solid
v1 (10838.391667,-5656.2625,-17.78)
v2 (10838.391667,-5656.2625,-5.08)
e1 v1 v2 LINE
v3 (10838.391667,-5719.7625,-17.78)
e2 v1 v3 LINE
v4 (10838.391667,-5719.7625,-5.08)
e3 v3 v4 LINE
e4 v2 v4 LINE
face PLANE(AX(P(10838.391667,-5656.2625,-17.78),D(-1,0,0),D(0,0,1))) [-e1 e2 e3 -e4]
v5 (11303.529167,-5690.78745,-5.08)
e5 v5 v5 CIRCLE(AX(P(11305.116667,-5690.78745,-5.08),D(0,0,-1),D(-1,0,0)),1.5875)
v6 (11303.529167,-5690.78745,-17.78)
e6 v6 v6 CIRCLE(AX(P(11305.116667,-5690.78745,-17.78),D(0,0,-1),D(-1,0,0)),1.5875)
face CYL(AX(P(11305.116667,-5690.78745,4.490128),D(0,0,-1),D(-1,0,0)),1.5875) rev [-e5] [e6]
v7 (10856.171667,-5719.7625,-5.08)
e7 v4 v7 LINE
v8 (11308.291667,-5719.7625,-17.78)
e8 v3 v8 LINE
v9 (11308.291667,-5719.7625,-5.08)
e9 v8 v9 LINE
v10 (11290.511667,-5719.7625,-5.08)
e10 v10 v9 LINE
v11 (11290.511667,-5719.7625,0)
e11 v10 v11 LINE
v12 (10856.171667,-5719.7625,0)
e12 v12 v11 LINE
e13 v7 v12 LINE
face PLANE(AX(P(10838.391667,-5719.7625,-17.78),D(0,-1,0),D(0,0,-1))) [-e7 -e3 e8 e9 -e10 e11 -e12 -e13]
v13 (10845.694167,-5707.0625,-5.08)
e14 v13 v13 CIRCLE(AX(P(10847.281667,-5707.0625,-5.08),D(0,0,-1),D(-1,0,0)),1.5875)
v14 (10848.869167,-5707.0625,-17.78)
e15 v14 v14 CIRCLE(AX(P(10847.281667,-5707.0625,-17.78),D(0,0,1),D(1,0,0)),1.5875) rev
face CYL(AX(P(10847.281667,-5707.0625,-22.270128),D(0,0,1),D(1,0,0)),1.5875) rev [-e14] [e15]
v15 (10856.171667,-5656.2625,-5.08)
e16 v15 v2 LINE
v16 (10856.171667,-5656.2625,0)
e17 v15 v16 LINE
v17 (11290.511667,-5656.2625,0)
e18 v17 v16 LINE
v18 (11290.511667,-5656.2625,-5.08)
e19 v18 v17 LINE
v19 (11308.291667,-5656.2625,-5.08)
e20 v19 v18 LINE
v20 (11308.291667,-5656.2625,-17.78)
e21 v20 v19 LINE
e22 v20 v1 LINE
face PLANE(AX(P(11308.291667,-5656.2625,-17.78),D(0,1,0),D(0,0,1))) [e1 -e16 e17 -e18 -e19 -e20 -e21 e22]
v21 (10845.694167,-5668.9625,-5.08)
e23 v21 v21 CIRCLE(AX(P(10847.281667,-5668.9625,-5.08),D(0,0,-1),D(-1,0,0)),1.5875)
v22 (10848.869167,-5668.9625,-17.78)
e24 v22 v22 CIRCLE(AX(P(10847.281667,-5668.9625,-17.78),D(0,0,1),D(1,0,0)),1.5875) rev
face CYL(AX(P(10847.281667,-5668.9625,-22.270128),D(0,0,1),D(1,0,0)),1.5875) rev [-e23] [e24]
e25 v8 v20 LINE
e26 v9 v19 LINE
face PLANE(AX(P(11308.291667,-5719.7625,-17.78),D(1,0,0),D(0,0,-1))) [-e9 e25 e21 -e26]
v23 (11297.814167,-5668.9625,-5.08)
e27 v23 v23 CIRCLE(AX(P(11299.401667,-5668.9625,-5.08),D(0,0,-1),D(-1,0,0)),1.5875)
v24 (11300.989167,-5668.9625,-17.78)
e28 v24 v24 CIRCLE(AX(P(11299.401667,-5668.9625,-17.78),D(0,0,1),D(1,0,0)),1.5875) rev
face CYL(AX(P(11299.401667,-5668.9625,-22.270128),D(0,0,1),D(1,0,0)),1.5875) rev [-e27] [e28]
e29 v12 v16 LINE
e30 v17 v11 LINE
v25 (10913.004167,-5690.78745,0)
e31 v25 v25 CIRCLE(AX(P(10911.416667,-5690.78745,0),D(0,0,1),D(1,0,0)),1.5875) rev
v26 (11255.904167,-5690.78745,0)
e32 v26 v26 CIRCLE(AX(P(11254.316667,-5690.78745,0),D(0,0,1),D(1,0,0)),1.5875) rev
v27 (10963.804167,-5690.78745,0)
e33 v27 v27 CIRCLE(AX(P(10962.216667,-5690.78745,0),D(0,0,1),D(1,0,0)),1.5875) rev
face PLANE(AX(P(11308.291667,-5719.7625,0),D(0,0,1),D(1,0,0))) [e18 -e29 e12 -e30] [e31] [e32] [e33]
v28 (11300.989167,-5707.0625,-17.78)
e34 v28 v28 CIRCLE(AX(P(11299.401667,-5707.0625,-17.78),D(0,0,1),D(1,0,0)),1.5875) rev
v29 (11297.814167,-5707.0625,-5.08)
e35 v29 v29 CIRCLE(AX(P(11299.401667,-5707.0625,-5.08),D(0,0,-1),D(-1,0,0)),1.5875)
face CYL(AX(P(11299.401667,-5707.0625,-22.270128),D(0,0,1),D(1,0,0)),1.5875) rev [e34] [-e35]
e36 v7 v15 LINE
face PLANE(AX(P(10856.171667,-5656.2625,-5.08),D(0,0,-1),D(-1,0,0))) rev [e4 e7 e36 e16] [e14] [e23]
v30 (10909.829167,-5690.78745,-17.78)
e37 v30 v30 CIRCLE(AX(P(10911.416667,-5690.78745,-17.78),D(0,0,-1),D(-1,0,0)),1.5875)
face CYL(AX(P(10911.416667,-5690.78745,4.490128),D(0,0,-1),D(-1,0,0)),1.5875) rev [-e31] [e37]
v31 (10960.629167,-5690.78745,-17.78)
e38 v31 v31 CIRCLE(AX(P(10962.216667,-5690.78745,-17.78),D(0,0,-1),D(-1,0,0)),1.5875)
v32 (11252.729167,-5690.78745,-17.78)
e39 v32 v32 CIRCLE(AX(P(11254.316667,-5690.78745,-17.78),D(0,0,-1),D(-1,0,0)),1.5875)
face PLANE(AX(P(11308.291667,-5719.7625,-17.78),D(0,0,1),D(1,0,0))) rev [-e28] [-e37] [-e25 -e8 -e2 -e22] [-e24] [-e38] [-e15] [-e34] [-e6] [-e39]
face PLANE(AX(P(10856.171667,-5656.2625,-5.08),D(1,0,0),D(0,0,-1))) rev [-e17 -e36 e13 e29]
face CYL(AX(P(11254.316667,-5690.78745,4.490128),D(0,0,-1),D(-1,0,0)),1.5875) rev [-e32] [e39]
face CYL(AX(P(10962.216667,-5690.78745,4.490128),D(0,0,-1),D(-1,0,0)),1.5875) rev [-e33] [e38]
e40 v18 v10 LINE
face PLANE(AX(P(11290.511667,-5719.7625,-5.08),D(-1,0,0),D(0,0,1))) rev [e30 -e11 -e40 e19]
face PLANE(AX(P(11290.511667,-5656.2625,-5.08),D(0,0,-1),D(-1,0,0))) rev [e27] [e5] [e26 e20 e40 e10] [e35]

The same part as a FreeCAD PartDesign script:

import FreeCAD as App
import Part
import Sketcher
Q = App.Units.Quantity

doc = App.newDocument("Part")
body = doc.addObject("PartDesign::Body", "Body")

# Sketch on XY plane
sketch1 = body.newObject("Sketcher::SketchObject", "Sketch")
sketch1.AttachmentSupport = (doc.getObject("XY_Plane"), [""])
sketch1.MapMode = "FlatFace"
sketch1.addGeometry([
    Part.LineSegment(App.Vector(10838.391667, -5656.2625, 0), App.Vector(10838.391667, -5719.7625, 0)),
    Part.LineSegment(App.Vector(10838.391667, -5719.7625, 0), App.Vector(11308.291667, -5719.7625, 0)),
    Part.LineSegment(App.Vector(11308.291667, -5719.7625, 0), App.Vector(11308.291667, -5656.2625, 0)),
    Part.LineSegment(App.Vector(11308.291667, -5656.2625, 0), App.Vector(10838.391667, -5656.2625, 0)),
], False)
sketch1.addConstraint([
    Sketcher.Constraint("Coincident", 0, 2, 1, 1),
    Sketcher.Constraint("Coincident", 1, 2, 2, 1),
    Sketcher.Constraint("Coincident", 2, 2, 3, 1),
    Sketcher.Constraint("Coincident", 3, 2, 0, 1),
    Sketcher.Constraint("Vertical", 0),
    Sketcher.Constraint("Horizontal", 1),
    Sketcher.Constraint("Vertical", 2),
    Sketcher.Constraint("Horizontal", 3),
    Sketcher.Constraint("DistanceX", 1, 1, 1, 2, Q("18.5 in")),
    Sketcher.Constraint("DistanceY", 0, 2, 0, 1, Q("2.5 in")),
    Sketcher.Constraint("DistanceY", 0, 2, -1, 1, Q("225.1875 in")),
    Sketcher.Constraint("DistanceX", -1, 1, 0, 2, Q("10838.391667 mm")),
])
pad1 = body.newObject("PartDesign::Pad", "Pad")
pad1.Profile = sketch1
pad1.Length = Q("0.7 in")
pad1.Reversed = True

# Sketch on XY plane
sketch2 = body.newObject("Sketcher::SketchObject", "Sketch001")
sketch2.AttachmentSupport = (doc.getObject("XY_Plane"), [""])
sketch2.MapMode = "FlatFace"
sketch2.addGeometry([
    Part.LineSegment(App.Vector(11290.511667, -5656.2625, 0), App.Vector(11290.511667, -5719.7625, 0)),  # 0
    Part.LineSegment(App.Vector(11290.511667, -5719.7625, 0), App.Vector(11308.291667, -5719.7625, 0)),  # 1
    Part.LineSegment(App.Vector(11308.291667, -5719.7625, 0), App.Vector(11308.291667, -5656.2625, 0)),  # 2
    Part.LineSegment(App.Vector(11308.291667, -5656.2625, 0), App.Vector(11290.511667, -5656.2625, 0)),  # 3
    Part.LineSegment(App.Vector(10838.391667, -5656.2625, 0), App.Vector(10838.391667, -5719.7625, 0)),  # 4
    Part.LineSegment(App.Vector(10838.391667, -5719.7625, 0), App.Vector(10856.171667, -5719.7625, 0)),  # 5
    Part.LineSegment(App.Vector(10856.171667, -5719.7625, 0), App.Vector(10856.171667, -5656.2625, 0)),  # 6
    Part.LineSegment(App.Vector(10856.171667, -5656.2625, 0), App.Vector(10838.391667, -5656.2625, 0)),  # 7
], False)
sketch2.addConstraint([
    Sketcher.Constraint("Coincident", 0, 2, 1, 1),
    Sketcher.Constraint("Coincident", 1, 2, 2, 1),
    Sketcher.Constraint("Coincident", 2, 2, 3, 1),
    Sketcher.Constraint("Coincident", 3, 2, 0, 1),
    Sketcher.Constraint("Coincident", 4, 2, 5, 1),
    Sketcher.Constraint("Coincident", 5, 2, 6, 1),
    Sketcher.Constraint("Coincident", 6, 2, 7, 1),
    Sketcher.Constraint("Coincident", 7, 2, 4, 1),
    Sketcher.Constraint("Vertical", 0),
    Sketcher.Constraint("Horizontal", 1),
    Sketcher.Constraint("Vertical", 2),
    Sketcher.Constraint("Horizontal", 3),
    Sketcher.Constraint("Vertical", 4),
    Sketcher.Constraint("Horizontal", 5),
    Sketcher.Constraint("Vertical", 6),
    Sketcher.Constraint("Horizontal", 7),
    Sketcher.Constraint("Horizontal", 1, 2, 4, 2),
    Sketcher.Constraint("Horizontal", 3, 2, 6, 2),
    Sketcher.Constraint("Equal", 3, 5),
    Sketcher.Constraint("DistanceX", 1, 1, 1, 2, Q("0.7 in")),
    Sketcher.Constraint("DistanceY", 0, 2, 0, 1, Q("2.5 in")),
    Sketcher.Constraint("DistanceX", 4, 2, 0, 2, Q("17.8 in")),
    Sketcher.Constraint("DistanceY", 0, 2, -1, 1, Q("225.1875 in")),
    Sketcher.Constraint("DistanceX", -1, 1, 0, 2, Q("11290.511667 mm")),
])
pocket1 = body.newObject("PartDesign::Pocket", "Pocket")
pocket1.Profile = sketch2
pocket1.Length = Q("0.2 in")

# Sketch on XY plane
sketch3 = body.newObject("Sketcher::SketchObject", "Sketch002")
sketch3.AttachmentSupport = (doc.getObject("XY_Plane"), [""])
sketch3.MapMode = "FlatFace"
sketch3.addGeometry([
    Part.Circle(App.Vector(10847.281667, -5668.9625, 0), App.Vector(0, 0, 1), 1.5875),
    Part.Circle(App.Vector(10847.281667, -5707.0625, 0), App.Vector(0, 0, 1), 1.5875),
    Part.Circle(App.Vector(11299.401667, -5707.0625, 0), App.Vector(0, 0, 1), 1.5875),
    Part.Circle(App.Vector(11299.401667, -5668.9625, 0), App.Vector(0, 0, 1), 1.5875),
], False)
sketch3.addConstraint([
    Sketcher.Constraint("Equal", 0, 1),
    Sketcher.Constraint("Equal", 1, 2),
    Sketcher.Constraint("Equal", 2, 3),
    Sketcher.Constraint("Horizontal", 1, 3, 2, 3),
    Sketcher.Constraint("Horizontal", 0, 3, 3, 3),
    Sketcher.Constraint("Vertical", 0, 3, 1, 3),
    Sketcher.Constraint("Vertical", 2, 3, 3, 3),
    Sketcher.Constraint("Diameter", 0, Q("0.125 in")),
    Sketcher.Constraint("DistanceY", 1, 3, 0, 3, Q("1.5 in")),
    Sketcher.Constraint("DistanceX", 1, 3, 2, 3, Q("17.8 in")),
    Sketcher.Constraint("DistanceY", 0, 3, -1, 1, Q("223.1875 in")),
    Sketcher.Constraint("DistanceX", -1, 1, 0, 3, Q("10847.281667 mm")),
])
pocket2 = body.newObject("PartDesign::Pocket", "Pocket001")
pocket2.Profile = sketch3
pocket2.Length = Q("0.7 in")

# Sketch on XY plane
sketch4 = body.newObject("Sketcher::SketchObject", "Sketch003")
sketch4.AttachmentSupport = (doc.getObject("XY_Plane"), [""])
sketch4.MapMode = "FlatFace"
sketch4.AttachmentOffset = App.Placement(App.Vector(0, 0, -0.7 * 25.4), App.Rotation())
sketch4.addGeometry([
    Part.Circle(App.Vector(10911.416667, -5690.78745, 0), App.Vector(0, 0, 1), 1.5875),
    Part.Circle(App.Vector(10962.216667, -5690.78745, 0), App.Vector(0, 0, 1), 1.5875),
    Part.Circle(App.Vector(11254.316667, -5690.78745, 0), App.Vector(0, 0, 1), 1.5875),
    Part.Circle(App.Vector(11305.116667, -5690.78745, 0), App.Vector(0, 0, 1), 1.5875),
], False)
sketch4.addConstraint([
    Sketcher.Constraint("Equal", 0, 1),
    Sketcher.Constraint("Equal", 1, 2),
    Sketcher.Constraint("Equal", 2, 3),
    Sketcher.Constraint("Horizontal", 0, 3, 1, 3),
    Sketcher.Constraint("Horizontal", 1, 3, 2, 3),
    Sketcher.Constraint("Horizontal", 2, 3, 3, 3),
    Sketcher.Constraint("Diameter", 0, Q("0.125 in")),
    Sketcher.Constraint("DistanceX", 0, 3, 1, 3, Q("2 in")),
    Sketcher.Constraint("DistanceX", 2, 3, 3, 3, Q("2 in")),
    Sketcher.Constraint("DistanceX", 1, 3, 2, 3, Q("11.5 in")),
    Sketcher.Constraint("DistanceY", 0, 3, -1, 1, Q("5690.78745 mm")),
    Sketcher.Constraint("DistanceX", -1, 1, 0, 3, Q("10911.416667 mm")),
])
pocket3 = body.newObject("PartDesign::Pocket", "Pocket002")
pocket3.Profile = sketch4
pocket3.Length = Q("0.7 in")
pocket3.Reversed = True

doc.recompute()
